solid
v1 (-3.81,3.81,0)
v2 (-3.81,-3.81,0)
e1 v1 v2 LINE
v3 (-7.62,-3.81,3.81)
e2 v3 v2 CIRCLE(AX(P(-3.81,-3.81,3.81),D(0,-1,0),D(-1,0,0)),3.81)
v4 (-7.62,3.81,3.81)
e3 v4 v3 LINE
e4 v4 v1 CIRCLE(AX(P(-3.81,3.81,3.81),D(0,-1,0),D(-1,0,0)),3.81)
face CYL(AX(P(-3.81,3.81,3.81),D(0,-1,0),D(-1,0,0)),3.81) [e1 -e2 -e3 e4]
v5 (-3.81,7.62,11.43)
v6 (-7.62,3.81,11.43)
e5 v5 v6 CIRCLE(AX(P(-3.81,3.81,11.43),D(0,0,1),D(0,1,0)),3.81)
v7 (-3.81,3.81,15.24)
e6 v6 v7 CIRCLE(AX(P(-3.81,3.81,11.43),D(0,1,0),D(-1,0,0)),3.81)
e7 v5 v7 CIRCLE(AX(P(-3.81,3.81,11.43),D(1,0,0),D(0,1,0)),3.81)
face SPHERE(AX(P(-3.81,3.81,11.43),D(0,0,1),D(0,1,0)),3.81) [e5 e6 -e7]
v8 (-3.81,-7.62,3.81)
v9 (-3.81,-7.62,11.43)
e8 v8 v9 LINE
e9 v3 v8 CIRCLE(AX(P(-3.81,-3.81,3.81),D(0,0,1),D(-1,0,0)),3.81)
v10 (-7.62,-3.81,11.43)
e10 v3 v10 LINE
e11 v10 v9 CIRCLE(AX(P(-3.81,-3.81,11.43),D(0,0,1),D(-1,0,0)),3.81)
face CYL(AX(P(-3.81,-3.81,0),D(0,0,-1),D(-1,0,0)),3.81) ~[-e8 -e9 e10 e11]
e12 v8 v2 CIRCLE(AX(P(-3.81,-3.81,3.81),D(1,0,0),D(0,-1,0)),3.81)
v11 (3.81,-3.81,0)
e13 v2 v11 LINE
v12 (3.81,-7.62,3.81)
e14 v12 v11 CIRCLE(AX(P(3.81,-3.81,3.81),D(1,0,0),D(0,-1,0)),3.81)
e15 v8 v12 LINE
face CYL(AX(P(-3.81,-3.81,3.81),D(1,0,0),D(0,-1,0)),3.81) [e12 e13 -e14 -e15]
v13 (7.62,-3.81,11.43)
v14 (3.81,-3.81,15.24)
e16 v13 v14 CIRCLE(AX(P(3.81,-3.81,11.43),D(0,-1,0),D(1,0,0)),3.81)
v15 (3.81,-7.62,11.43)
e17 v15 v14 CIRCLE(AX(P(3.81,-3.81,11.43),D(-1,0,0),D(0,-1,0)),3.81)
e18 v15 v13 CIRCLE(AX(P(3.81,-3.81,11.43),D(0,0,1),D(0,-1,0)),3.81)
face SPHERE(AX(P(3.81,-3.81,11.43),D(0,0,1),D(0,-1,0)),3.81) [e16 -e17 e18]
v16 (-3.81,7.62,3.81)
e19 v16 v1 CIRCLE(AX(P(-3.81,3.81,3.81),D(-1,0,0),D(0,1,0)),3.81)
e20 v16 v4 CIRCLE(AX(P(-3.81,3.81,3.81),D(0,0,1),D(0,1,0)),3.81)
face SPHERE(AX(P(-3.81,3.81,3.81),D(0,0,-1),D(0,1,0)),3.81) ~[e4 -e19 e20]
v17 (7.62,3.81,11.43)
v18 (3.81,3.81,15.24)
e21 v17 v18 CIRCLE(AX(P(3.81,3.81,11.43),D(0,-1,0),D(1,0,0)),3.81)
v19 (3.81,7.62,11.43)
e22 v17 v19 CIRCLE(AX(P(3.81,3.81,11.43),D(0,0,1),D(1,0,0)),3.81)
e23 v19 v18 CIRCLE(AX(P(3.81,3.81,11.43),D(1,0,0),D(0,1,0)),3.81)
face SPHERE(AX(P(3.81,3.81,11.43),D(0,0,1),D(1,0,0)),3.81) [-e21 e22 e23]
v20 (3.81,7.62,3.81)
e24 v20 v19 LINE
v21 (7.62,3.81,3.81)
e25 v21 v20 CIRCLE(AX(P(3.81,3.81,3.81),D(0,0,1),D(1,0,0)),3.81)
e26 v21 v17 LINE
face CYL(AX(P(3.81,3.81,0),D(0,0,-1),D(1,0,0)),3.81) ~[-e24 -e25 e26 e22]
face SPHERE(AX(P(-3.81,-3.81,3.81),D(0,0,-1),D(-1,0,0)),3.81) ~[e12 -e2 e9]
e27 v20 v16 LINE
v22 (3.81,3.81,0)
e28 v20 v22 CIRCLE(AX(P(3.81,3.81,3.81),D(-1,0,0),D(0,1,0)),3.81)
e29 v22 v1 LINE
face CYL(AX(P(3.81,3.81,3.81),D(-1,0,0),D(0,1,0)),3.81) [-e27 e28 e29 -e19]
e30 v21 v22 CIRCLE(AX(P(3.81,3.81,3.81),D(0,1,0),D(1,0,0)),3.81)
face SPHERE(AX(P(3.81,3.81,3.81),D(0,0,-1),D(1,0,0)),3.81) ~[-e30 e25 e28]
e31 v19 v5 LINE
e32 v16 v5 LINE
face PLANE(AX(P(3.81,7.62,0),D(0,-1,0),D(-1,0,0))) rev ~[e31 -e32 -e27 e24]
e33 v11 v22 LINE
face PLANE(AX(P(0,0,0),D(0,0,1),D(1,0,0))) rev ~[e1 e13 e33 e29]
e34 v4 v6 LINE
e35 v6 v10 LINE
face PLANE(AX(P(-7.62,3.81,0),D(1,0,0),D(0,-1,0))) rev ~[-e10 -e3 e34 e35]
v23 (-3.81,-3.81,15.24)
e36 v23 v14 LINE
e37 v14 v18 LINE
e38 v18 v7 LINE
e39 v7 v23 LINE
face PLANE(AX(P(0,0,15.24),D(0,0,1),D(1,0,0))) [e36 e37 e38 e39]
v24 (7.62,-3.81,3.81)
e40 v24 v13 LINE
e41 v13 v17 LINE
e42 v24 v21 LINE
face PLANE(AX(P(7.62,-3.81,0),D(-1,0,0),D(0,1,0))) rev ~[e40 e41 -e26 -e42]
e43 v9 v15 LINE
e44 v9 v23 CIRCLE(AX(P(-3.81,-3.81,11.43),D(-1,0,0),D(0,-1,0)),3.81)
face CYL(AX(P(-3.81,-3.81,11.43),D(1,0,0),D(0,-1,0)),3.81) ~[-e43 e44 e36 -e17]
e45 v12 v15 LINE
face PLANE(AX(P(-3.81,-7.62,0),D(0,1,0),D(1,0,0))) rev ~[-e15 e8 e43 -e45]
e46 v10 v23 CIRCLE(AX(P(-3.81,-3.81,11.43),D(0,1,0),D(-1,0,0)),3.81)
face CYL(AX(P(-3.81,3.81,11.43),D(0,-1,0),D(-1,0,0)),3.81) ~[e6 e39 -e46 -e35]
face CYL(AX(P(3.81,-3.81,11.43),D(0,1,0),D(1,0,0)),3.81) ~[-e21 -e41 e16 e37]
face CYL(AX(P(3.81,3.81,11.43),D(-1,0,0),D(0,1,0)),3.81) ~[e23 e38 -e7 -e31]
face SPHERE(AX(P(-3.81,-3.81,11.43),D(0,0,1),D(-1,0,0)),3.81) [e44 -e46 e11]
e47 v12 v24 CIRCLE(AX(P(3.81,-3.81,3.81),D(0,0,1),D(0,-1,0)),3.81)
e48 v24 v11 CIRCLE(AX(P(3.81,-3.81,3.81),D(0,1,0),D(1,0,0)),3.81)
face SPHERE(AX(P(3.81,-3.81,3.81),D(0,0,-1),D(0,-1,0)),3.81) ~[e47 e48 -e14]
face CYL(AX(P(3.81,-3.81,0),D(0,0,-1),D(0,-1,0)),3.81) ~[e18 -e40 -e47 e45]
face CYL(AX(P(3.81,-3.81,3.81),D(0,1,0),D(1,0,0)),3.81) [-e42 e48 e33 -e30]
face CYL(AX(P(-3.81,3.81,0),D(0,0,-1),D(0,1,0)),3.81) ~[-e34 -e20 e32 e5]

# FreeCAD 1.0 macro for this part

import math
import FreeCAD as App
import Part
import Sketcher

V = App.Vector
Q = App.Units.Quantity


def edges_at(feature, points):
    """Names of the edges that pass closest to the given points."""
    edges = feature.Shape.Edges
    near = lambda p: min(range(len(edges)), key=lambda i: edges[i].distToShape(Part.Vertex(*p))[0])
    return sorted({f"Edge{near(p) + 1}" for p in points})

doc = App.newDocument("Part")
body = doc.addObject("PartDesign::Body", "Body")

# Sketch on XY plane
sketch1 = doc.addObject("Sketcher::SketchObject", "Sketch")
body.addObject(sketch1)
sketch1.AttachmentSupport = (doc.XY_Plane, [""])
sketch1.MapMode = "FlatFace"
sketch1.addGeometry([
    Part.LineSegment(V(-3.81, -7.62, 0), V(3.81, -7.62, 0)),  # 0
    Part.ArcOfCircle(Part.Circle(V(3.81, -3.81, 0), V(0, 0, 1), 3.81), math.radians(-90), math.radians(0)),  # 1
    Part.LineSegment(V(7.62, -3.81, 0), V(7.62, 3.81, 0)),  # 2
    Part.ArcOfCircle(Part.Circle(V(3.81, 3.81, 0), V(0, 0, 1), 3.81), math.radians(0), math.radians(90)),  # 3
    Part.LineSegment(V(3.81, 7.62, 0), V(-3.81, 7.62, 0)),  # 4
    Part.ArcOfCircle(Part.Circle(V(-3.81, 3.81, 0), V(0, 0, 1), 3.81), math.radians(90), math.radians(180)),  # 5
    Part.LineSegment(V(-7.62, 3.81, 0), V(-7.62, -3.81, 0)),  # 6
    Part.ArcOfCircle(Part.Circle(V(-3.81, -3.81, 0), V(0, 0, 1), 3.81), math.radians(180), math.radians(270)),  # 7
], False)
sketch1.addConstraint([
    Sketcher.Constraint("Tangent", 0, 2, 1, 1),
    Sketcher.Constraint("Tangent", 1, 2, 2, 1),
    Sketcher.Constraint("Tangent", 2, 2, 3, 1),
    Sketcher.Constraint("Tangent", 3, 2, 4, 1),
    Sketcher.Constraint("Tangent", 4, 2, 5, 1),
    Sketcher.Constraint("Tangent", 5, 2, 6, 1),
    Sketcher.Constraint("Tangent", 6, 2, 7, 1),
    Sketcher.Constraint("Tangent", 7, 2, 0, 1),
    Sketcher.Constraint("Horizontal", 0),
    Sketcher.Constraint("Vertical", 2),
    Sketcher.Constraint("Horizontal", 4),
    Sketcher.Constraint("Vertical", 6),
    Sketcher.Constraint("Equal", 1, 3),
    Sketcher.Constraint("Equal", 3, 5),
    Sketcher.Constraint("Equal", 5, 7),
    Sketcher.Constraint("Symmetric", 1, 3, 5, 3, -1, 1),
    Sketcher.Constraint("Equal", 4, 2),
    Sketcher.Constraint("Radius", 1, Q("0.15 in")),
    Sketcher.Constraint("DistanceX", 0, 1, 0, 2, Q("0.3 in")),
])
pad1 = doc.addObject("PartDesign::Pad", "Pad")
body.addObject(pad1)
pad1.Profile = sketch1
pad1.Length = Q("0.6 in")
doc.recompute()

fillet = doc.addObject("PartDesign::Fillet", "Fillet")
body.addObject(fillet)
fillet.Base = (pad1, edges_at(pad1, [
    (-7.62, 0, 15.24),
    (-6.504, -6.504, 15.24),
    (0, -7.62, 15.24),
    (6.504, -6.504, 15.24),
    (7.62, 0, 15.24),
    (6.504, 6.504, 15.24),
    (0, 7.62, 15.24),
    (-6.504, 6.504, 15.24),
    (-7.62, 0, 0),
    (-6.504, -6.504, 0),
    (0, -7.62, 0),
    (6.504, -6.504, 0),
    (7.62, 0, 0),
    (6.504, 6.504, 0),
    (0, 7.62, 0),
    (-6.504, 6.504, 0),
]))
fillet.Radius = Q("0.15 in")

doc.recompute()
